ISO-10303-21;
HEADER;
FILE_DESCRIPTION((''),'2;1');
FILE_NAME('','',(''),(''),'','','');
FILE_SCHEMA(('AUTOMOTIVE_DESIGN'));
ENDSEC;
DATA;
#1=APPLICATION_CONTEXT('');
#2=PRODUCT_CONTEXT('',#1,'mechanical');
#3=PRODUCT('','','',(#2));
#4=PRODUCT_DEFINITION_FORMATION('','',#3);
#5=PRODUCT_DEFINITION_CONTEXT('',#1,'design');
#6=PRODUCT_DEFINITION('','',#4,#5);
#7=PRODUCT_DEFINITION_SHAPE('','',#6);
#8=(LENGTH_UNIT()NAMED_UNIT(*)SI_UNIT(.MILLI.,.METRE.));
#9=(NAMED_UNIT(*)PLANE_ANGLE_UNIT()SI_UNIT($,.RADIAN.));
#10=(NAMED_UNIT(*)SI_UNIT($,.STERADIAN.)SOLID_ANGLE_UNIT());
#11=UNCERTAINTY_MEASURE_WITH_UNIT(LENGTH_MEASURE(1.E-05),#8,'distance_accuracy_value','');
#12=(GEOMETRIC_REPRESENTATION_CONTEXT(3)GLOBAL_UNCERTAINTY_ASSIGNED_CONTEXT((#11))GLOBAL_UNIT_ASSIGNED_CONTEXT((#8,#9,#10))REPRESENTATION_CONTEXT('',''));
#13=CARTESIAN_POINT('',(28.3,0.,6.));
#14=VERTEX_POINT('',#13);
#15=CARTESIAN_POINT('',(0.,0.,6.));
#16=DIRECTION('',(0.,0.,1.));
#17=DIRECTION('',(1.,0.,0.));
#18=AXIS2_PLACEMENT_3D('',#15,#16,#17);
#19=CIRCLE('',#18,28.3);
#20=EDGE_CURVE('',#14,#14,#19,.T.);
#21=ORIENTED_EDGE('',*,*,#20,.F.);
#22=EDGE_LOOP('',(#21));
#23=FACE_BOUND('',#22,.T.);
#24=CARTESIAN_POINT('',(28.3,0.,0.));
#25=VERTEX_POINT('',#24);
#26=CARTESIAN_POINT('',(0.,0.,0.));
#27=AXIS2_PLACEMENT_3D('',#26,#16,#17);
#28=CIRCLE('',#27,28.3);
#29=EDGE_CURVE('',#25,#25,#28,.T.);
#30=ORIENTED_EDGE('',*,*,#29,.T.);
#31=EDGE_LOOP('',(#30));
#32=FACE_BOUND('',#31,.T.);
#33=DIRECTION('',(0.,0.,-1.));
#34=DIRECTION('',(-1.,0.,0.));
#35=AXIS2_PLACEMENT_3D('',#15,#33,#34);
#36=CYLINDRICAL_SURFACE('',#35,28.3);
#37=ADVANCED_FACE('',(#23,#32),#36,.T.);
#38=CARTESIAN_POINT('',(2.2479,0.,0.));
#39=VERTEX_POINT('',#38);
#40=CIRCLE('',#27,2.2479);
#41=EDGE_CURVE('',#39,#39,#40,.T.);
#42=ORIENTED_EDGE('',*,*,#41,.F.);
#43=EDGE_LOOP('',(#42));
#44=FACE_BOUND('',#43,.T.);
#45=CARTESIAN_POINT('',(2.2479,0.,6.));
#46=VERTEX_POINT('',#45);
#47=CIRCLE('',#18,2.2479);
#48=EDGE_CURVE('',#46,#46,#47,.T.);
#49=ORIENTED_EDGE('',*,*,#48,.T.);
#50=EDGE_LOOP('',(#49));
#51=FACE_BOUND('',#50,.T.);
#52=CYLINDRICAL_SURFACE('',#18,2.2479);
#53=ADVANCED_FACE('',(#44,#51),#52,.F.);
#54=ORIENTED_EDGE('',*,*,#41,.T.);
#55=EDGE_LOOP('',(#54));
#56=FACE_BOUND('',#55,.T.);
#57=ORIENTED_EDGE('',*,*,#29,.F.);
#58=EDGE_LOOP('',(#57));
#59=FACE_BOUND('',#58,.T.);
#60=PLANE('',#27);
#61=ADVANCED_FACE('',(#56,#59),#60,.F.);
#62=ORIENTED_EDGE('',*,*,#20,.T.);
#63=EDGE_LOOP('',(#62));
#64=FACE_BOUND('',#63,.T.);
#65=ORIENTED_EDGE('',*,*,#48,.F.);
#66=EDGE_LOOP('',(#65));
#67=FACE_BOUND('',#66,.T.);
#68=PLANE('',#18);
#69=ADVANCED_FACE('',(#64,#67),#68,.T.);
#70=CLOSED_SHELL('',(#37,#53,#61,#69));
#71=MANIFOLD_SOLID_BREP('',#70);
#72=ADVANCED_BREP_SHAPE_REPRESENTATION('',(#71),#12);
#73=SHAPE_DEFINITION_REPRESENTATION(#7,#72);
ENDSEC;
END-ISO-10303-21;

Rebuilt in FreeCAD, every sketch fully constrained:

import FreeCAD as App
import Part
import Sketcher

V = App.Vector
Q = App.Units.Quantity

doc = App.newDocument("Part")
body = doc.addObject("PartDesign::Body", "Body")

sketch1 = doc.addObject("Sketcher::SketchObject", "Sketch")
body.addObject(sketch1)
sketch1.AttachmentSupport = (doc.XY_Plane, [""])
sketch1.MapMode = "FlatFace"
sketch1.addGeometry(Part.Circle(V(0, 0, 0), V(0, 0, 1), 28), False)
sketch1.addConstraint([
    Sketcher.Constraint("Coincident", 0, 3, -1, 1),
    Sketcher.Constraint("Diameter", 0, Q("56.6 mm")),
])
pad1 = doc.addObject("PartDesign::Pad", "Pad")
body.addObject(pad1)
pad1.Profile = sketch1
pad1.Length = 6

sketch2 = doc.addObject("Sketcher::SketchObject", "Sketch001")
body.addObject(sketch2)
sketch2.AttachmentSupport = (doc.XY_Plane, [""])
sketch2.MapMode = "FlatFace"
sketch2.AttachmentOffset = App.Placement(V(0, 0, 6), App.Rotation())
sketch2.addGeometry(Part.Circle(V(0, 0, 0), V(0, 0, 1), 2.2), False)
sketch2.addConstraint([
    Sketcher.Constraint("Coincident", 0, 3, -1, 1),
    Sketcher.Constraint("Diameter", 0, Q("4.4958 mm")),
])
doc.recompute()
hole = doc.addObject("PartDesign::Hole", "Hole")
body.addObject(hole)
hole.Profile = sketch2
hole.ThreadType = "None"
hole.Diameter = 4.4958
hole.DepthType = "ThroughAll"

doc.recompute()
